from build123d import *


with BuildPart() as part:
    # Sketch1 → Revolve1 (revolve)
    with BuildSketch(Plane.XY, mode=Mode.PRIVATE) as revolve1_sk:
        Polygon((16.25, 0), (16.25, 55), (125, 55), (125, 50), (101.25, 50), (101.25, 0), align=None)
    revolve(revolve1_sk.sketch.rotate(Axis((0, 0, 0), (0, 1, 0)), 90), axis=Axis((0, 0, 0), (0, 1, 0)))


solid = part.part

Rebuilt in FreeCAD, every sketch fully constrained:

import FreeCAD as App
import Part
import Sketcher
Q = App.Units.Quantity

doc = App.newDocument("Part")
body = doc.addObject("PartDesign::Body", "Body")

sketch1 = body.newObject("Sketcher::SketchObject", "Sketch")
sketch1.AttachmentSupport = (doc.getObject("XY_Plane"), [""])
sketch1.MapMode = "FlatFace"
sketch1.addGeometry(Part.LineSegment(App.Vector(16, 55, 0), App.Vector(16, 0, 0)), False)
sketch1.addGeometry(Part.LineSegment(App.Vector(16, 0, 0), App.Vector(101, 0, 0)), False)
sketch1.addGeometry(Part.LineSegment(App.Vector(101, 0, 0), App.Vector(101, 50, 0)), False)
sketch1.addGeometry(Part.LineSegment(App.Vector(101, 50, 0), App.Vector(125, 50, 0)), False)
sketch1.addGeometry(Part.LineSegment(App.Vector(125, 50, 0), App.Vector(125, 55, 0)), False)
sketch1.addGeometry(Part.LineSegment(App.Vector(125, 55, 0), App.Vector(16, 55, 0)), False)
sketch1.addConstraint(Sketcher.Constraint("Coincident", 0, 2, 1, 1))
sketch1.addConstraint(Sketcher.Constraint("Coincident", 1, 2, 2, 1))
sketch1.addConstraint(Sketcher.Constraint("Coincident", 2, 2, 3, 1))
sketch1.addConstraint(Sketcher.Constraint("Coincident", 3, 2, 4, 1))
sketch1.addConstraint(Sketcher.Constraint("Coincident", 4, 2, 5, 1))
sketch1.addConstraint(Sketcher.Constraint("Coincident", 5, 2, 0, 1))
sketch1.addConstraint(Sketcher.Constraint("Vertical", 0))
sketch1.addConstraint(Sketcher.Constraint("Horizontal", 1))
sketch1.addConstraint(Sketcher.Constraint("Vertical", 2))
sketch1.addConstraint(Sketcher.Constraint("Horizontal", 3))
sketch1.addConstraint(Sketcher.Constraint("Vertical", 4))
sketch1.addConstraint(Sketcher.Constraint("Horizontal", 5))
sketch1.addConstraint(Sketcher.Constraint("PointOnObject", 0, 2, -1))
sketch1.addConstraint(Sketcher.Constraint("DistanceX", 1, 1, 1, 2, Q("85 mm")))
sketch1.addConstraint(Sketcher.Constraint("DistanceY", 0, 2, 0, 1, Q("55 mm")))
sketch1.addConstraint(Sketcher.Constraint("DistanceY", 2, 1, 2, 2, Q("50 mm")))
sketch1.addConstraint(Sketcher.Constraint("DistanceX", -1, 1, 3, 2, Q("125 mm")))
sketch1.addConstraint(Sketcher.Constraint("DistanceX", 3, 1, 3, 2, Q("23.75 mm")))
revolution = body.newObject("PartDesign::Revolution", "Revolution")
revolution.Profile = sketch1
revolution.ReferenceAxis = (sketch1, ["V_Axis"])
revolution.Angle = 360

doc.recompute()
